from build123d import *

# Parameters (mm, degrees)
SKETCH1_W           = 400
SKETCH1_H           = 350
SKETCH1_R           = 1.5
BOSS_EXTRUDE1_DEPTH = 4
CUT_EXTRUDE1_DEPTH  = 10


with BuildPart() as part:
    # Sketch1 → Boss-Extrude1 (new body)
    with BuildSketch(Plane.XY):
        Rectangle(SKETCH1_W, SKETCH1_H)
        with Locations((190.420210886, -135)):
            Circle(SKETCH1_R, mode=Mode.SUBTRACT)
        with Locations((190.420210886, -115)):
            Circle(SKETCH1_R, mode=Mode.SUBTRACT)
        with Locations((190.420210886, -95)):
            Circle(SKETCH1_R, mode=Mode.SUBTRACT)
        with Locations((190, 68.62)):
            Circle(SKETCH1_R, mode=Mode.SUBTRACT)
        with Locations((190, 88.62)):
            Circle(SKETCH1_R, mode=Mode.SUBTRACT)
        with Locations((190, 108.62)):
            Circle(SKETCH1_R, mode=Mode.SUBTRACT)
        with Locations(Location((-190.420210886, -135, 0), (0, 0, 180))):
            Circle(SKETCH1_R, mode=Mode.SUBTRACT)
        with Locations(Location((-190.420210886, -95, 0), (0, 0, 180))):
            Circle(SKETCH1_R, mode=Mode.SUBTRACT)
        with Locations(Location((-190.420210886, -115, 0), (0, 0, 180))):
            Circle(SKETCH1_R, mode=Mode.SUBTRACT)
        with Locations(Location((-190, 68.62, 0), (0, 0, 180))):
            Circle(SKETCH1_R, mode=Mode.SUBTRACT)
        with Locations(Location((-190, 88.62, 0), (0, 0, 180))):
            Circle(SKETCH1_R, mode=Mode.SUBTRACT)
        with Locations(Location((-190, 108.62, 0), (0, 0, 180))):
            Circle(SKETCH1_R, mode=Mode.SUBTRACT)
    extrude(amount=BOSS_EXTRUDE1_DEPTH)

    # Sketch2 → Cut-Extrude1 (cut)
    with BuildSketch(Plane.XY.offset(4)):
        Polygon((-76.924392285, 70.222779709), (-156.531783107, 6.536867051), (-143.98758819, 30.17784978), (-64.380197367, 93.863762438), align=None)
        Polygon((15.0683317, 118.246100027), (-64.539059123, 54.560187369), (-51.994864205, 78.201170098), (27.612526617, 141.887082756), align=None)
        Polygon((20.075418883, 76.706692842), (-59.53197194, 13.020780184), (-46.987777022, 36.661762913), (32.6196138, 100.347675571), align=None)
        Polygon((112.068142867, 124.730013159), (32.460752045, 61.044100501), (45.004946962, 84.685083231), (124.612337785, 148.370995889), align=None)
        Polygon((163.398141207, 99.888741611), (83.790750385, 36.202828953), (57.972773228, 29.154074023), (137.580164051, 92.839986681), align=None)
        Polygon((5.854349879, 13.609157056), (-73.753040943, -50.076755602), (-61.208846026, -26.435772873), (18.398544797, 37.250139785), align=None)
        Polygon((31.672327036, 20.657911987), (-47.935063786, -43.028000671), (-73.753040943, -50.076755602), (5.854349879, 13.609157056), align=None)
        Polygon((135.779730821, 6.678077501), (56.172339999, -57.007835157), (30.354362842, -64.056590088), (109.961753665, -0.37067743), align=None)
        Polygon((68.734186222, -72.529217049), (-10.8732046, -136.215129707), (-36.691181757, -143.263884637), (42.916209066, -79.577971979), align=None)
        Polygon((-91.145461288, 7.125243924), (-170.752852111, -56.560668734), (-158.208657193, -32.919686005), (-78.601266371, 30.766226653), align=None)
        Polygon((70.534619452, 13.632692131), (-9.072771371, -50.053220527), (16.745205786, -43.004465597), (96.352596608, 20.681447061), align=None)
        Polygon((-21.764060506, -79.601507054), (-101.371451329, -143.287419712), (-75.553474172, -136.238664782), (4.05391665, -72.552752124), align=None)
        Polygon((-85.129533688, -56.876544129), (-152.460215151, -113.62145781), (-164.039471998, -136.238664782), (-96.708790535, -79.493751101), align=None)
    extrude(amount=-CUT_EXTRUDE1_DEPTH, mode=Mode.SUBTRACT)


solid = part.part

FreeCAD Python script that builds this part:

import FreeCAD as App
import Part
import Sketcher


def add_polygon(sketch, points):
    """Adds a closed chain of lines whose ends are joined by coincident constraints."""
    first, n = sketch.GeometryCount, len(points)
    for a, b in zip(points, points[1:] + points[:1]):
        sketch.addGeometry(Part.LineSegment(App.Vector(*a, 0), App.Vector(*b, 0)), False)
    for i in range(n):
        sketch.addConstraint(Sketcher.Constraint("Coincident", first + i, 2, first + (i + 1) % n, 1))

doc = App.newDocument("Part")
body = doc.addObject("PartDesign::Body", "Body")

sketch1 = body.newObject("Sketcher::SketchObject", "Sketch")
sketch1.AttachmentSupport = (doc.getObject("XY_Plane"), [""])
sketch1.MapMode = "FlatFace"
add_polygon(sketch1, [(-200, 175), (-200, -175), (200, -175), (200, 175)])
sketch1.addGeometry(Part.Circle(App.Vector(-190.4, -135, 0), App.Vector(0, 0, 1), 1.5), False)
sketch1.addGeometry(Part.Circle(App.Vector(-190.4, -115, 0), App.Vector(0, 0, 1), 1.5), False)
sketch1.addGeometry(Part.Circle(App.Vector(-190.4, -95, 0), App.Vector(0, 0, 1), 1.5), False)
sketch1.addGeometry(Part.Circle(App.Vector(190.4, -135, 0), App.Vector(0, 0, 1), 1.5), False)
sketch1.addGeometry(Part.Circle(App.Vector(190.4, -115, 0), App.Vector(0, 0, 1), 1.5), False)
sketch1.addGeometry(Part.Circle(App.Vector(190.4, -95, 0), App.Vector(0, 0, 1), 1.5), False)
sketch1.addGeometry(Part.Circle(App.Vector(-190, 68.6, 0), App.Vector(0, 0, 1), 1.5), False)
sketch1.addGeometry(Part.Circle(App.Vector(-190, 88.6, 0), App.Vector(0, 0, 1), 1.5), False)
sketch1.addGeometry(Part.Circle(App.Vector(-190, 108.6, 0), App.Vector(0, 0, 1), 1.5), False)
sketch1.addGeometry(Part.Circle(App.Vector(190, 68.6, 0), App.Vector(0, 0, 1), 1.5), False)
sketch1.addGeometry(Part.Circle(App.Vector(190, 88.6, 0), App.Vector(0, 0, 1), 1.5), False)
sketch1.addGeometry(Part.Circle(App.Vector(190, 108.6, 0), App.Vector(0, 0, 1), 1.5), False)
sketch1.addConstraint([
    Sketcher.Constraint("Vertical", 0),
    Sketcher.Constraint("Horizontal", 1),
    Sketcher.Constraint("Vertical", 2),
    Sketcher.Constraint("Horizontal", 3),
    Sketcher.Constraint("Equal", 4, 5),
    Sketcher.Constraint("Equal", 5, 6),
    Sketcher.Constraint("Equal", 6, 7),
    Sketcher.Constraint("Equal", 7, 8),
    Sketcher.Constraint("Equal", 8, 9),
    Sketcher.Constraint("Equal", 9, 10),
    Sketcher.Constraint("Equal", 10, 11),
    Sketcher.Constraint("Equal", 11, 12),
    Sketcher.Constraint("Equal", 12, 13),
    Sketcher.Constraint("Equal", 13, 14),
    Sketcher.Constraint("Equal", 14, 15),
    Sketcher.Constraint("Symmetric", 0, 2, 2, 2, -1, 1),
    Sketcher.Constraint("Symmetric", 4, 3, 7, 3, -2),
    Sketcher.Constraint("Symmetric", 5, 3, 8, 3, -2),
    Sketcher.Constraint("Symmetric", 6, 3, 9, 3, -2),
    Sketcher.Constraint("Symmetric", 10, 3, 13, 3, -2),
    Sketcher.Constraint("Symmetric", 11, 3, 14, 3, -2),
    Sketcher.Constraint("Symmetric", 12, 3, 15, 3, -2),
    Sketcher.Constraint("Vertical", 4, 3, 5, 3),
    Sketcher.Constraint("Vertical", 5, 3, 6, 3),
    Sketcher.Constraint("Vertical", 10, 3, 11, 3),
    Sketcher.Constraint("Vertical", 11, 3, 12, 3),
    Sketcher.Constraint("Diameter", 4, 3.0),
    Sketcher.Constraint("DistanceX", 1, 1, 1, 2, 400.0),
    Sketcher.Constraint("DistanceY", 0, 2, 0, 1, 350.0),
    Sketcher.Constraint("DistanceY", 4, 3, -1, 1, 135.0),
    Sketcher.Constraint("DistanceY", 5, 3, -1, 1, 115.0),
    Sketcher.Constraint("DistanceY", 6, 3, -1, 1, 95.0),
    Sketcher.Constraint("DistanceX", 10, 3, -1, 1, 190.0),
    Sketcher.Constraint("DistanceY", 10, 3, 11, 3, 20.0),
    Sketcher.Constraint("DistanceY", 11, 3, 12, 3, 20.0),
    Sketcher.Constraint("DistanceY", -1, 1, 10, 3, 68.62),
    Sketcher.Constraint("DistanceX", 4, 3, -1, 1, 190.420211),
])
pad1 = body.newObject("PartDesign::Pad", "Pad")
pad1.Profile = sketch1
pad1.Length = 4

sketch2 = body.newObject("Sketcher::SketchObject", "Sketch001")
sketch2.AttachmentSupport = (doc.getObject("XY_Plane"), [""])
sketch2.MapMode = "FlatFace"
sketch2.AttachmentOffset = App.Placement(App.Vector(0, 0, 4), App.Rotation())
add_polygon(sketch2, [(-157, 7), (-77, 70), (-64, 94), (-144, 30)])
add_polygon(sketch2, [(-65, 55), (15, 118), (28, 142), (-52, 78)])
add_polygon(sketch2, [(-60, 13), (20, 77), (33, 100), (-47, 37)])
add_polygon(sketch2, [(32, 61), (112, 125), (125, 148), (45, 85)])
add_polygon(sketch2, [(84, 36), (163, 100), (138, 93), (58, 29)])
add_polygon(sketch2, [(-61, -26), (-74, -50), (-48, -43), (32, 21), (6, 14), (18, 37)])
add_polygon(sketch2, [(56, -57), (136, 7), (110, 0), (30, -64)])
add_polygon(sketch2, [(-11, -136), (69, -73), (43, -80), (-37, -143)])
add_polygon(sketch2, [(-171, -57), (-91, 7), (-79, 31), (-158, -33)])
add_polygon(sketch2, [(71, 14), (-9, -50), (17, -43), (96, 21)])
add_polygon(sketch2, [(-22, -80), (-101, -143), (-76, -136), (4, -73)])
add_polygon(sketch2, [(-85, -57), (-152, -114), (-164, -136), (-97, -79)])
sketch2.addConstraint([
    Sketcher.Constraint("Parallel", 0, 2),
    Sketcher.Constraint("Parallel", 1, 3),
    Sketcher.Constraint("Parallel", 2, 4),
    Sketcher.Constraint("Parallel", 3, 5),
    Sketcher.Constraint("Parallel", 4, 6),
    Sketcher.Constraint("Parallel", 5, 7),
    Sketcher.Constraint("Parallel", 6, 8),
    Sketcher.Constraint("Parallel", 7, 9),
    Sketcher.Constraint("Parallel", 8, 10),
    Sketcher.Constraint("Parallel", 9, 11),
    Sketcher.Constraint("Parallel", 10, 12),
    Sketcher.Constraint("Parallel", 11, 13),
    Sketcher.Constraint("Parallel", 12, 14),
    Sketcher.Constraint("Parallel", 13, 15),
    Sketcher.Constraint("Parallel", 14, 16),
    Sketcher.Constraint("Parallel", 16, 18),
    Sketcher.Constraint("Parallel", 17, 19),
    Sketcher.Constraint("Parallel", 15, 20),
    Sketcher.Constraint("Parallel", 19, 21),
    Sketcher.Constraint("Parallel", 18, 22),
    Sketcher.Constraint("Parallel", 21, 23),
    Sketcher.Constraint("Parallel", 20, 24),
    Sketcher.Constraint("Parallel", 22, 25),
    Sketcher.Constraint("Parallel", 25, 26),
    Sketcher.Constraint("Parallel", 23, 27),
    Sketcher.Constraint("Parallel", 26, 28),
    Sketcher.Constraint("Parallel", 27, 29),
    Sketcher.Constraint("Parallel", 28, 30),
    Sketcher.Constraint("Parallel", 29, 31),
    Sketcher.Constraint("Parallel", 30, 32),
    Sketcher.Constraint("Parallel", 31, 33),
    Sketcher.Constraint("Parallel", 32, 34),
    Sketcher.Constraint("Parallel", 24, 35),
    Sketcher.Constraint("Parallel", 34, 36),
    Sketcher.Constraint("Parallel", 35, 37),
    Sketcher.Constraint("Parallel", 36, 38),
    Sketcher.Constraint("Parallel", 33, 39),
    Sketcher.Constraint("Parallel", 38, 40),
    Sketcher.Constraint("Parallel", 39, 41),
    Sketcher.Constraint("Parallel", 40, 42),
    Sketcher.Constraint("Parallel", 41, 43),
    Sketcher.Constraint("Parallel", 42, 44),
    Sketcher.Constraint("Parallel", 43, 45),
    Sketcher.Constraint("Parallel", 46, 48),
    Sketcher.Constraint("Parallel", 47, 49),
    Sketcher.Constraint("Horizontal", 43, 2, 47, 2),
    Sketcher.Constraint("Equal", 2, 4),
    Sketcher.Constraint("Equal", 3, 5),
    Sketcher.Constraint("Equal", 6, 8),
    Sketcher.Constraint("Equal", 7, 9),
    Sketcher.Constraint("Equal", 10, 12),
    Sketcher.Constraint("Equal", 11, 13),
    Sketcher.Constraint("Equal", 14, 16),
    Sketcher.Constraint("Equal", 15, 17),
    Sketcher.Constraint("Equal", 19, 20),
    Sketcher.Constraint("Equal", 20, 21),
    Sketcher.Constraint("Equal", 18, 22),
    Sketcher.Constraint("Equal", 21, 23),
    Sketcher.Constraint("Equal", 25, 26),
    Sketcher.Constraint("Equal", 24, 27),
    Sketcher.Constraint("Equal", 28, 30),
    Sketcher.Constraint("Equal", 29, 31),
    Sketcher.Constraint("Equal", 32, 34),
    Sketcher.Constraint("Equal", 33, 35),
    Sketcher.Constraint("Equal", 36, 38),
    Sketcher.Constraint("Equal", 37, 39),
    Sketcher.Constraint("Equal", 40, 42),
    Sketcher.Constraint("Equal", 41, 43),
    Sketcher.Constraint("DistanceX", 12, 2, 16, 2, 51.329998),
    Sketcher.Constraint("Distance", 47, 25.408999),
    Sketcher.Constraint("DistanceY", 21, 2, -1, 1, 43.028001),
    Sketcher.Constraint("DistanceY", 10, 2, 1, 2, 57.202),
    Sketcher.Constraint("DistanceY", 14, 2, 5, 2, 57.202),
    Sketcher.Constraint("Distance", 1, 26.762901),
    Sketcher.Constraint("DistanceY", -1, 1, 4, 2, 118.2461),
    Sketcher.Constraint("DistanceY", 18, 2, 9, 2, 71.193602),
    Sketcher.Constraint("DistanceX", 37, 2, 42, 2, 69.381401),
    Sketcher.Constraint("DistanceY", -1, 1, 0, 2, 70.22278),
    Sketcher.Constraint("DistanceX", 2, 2, -1, 1, 143.987588),
    Sketcher.Constraint("DistanceY", -1, 1, 2, 2, 30.17785),
    Sketcher.Constraint("DistanceX", -1, 1, 4, 2, 15.068332),
    Sketcher.Constraint("DistanceX", 7, 2, -1, 1, 64.539059),
    Sketcher.Constraint("DistanceX", -1, 1, 8, 2, 20.075419),
    Sketcher.Constraint("DistanceX", -1, 1, 16, 2, 163.398141),
    Sketcher.Constraint("DistanceY", -1, 1, 16, 2, 99.888742),
    Sketcher.Constraint("DistanceY", -1, 1, 19, 2, 36.202829),
    Sketcher.Constraint("DistanceX", 20, 2, -1, 1, 73.753041),
    Sketcher.Constraint("DistanceX", -1, 1, 26, 2, 135.779731),
    Sketcher.Constraint("DistanceY", 28, 2, -1, 1, 64.05659),
    Sketcher.Constraint("DistanceX", -1, 1, 31, 2, 42.916209),
    Sketcher.Constraint("DistanceY", 31, 2, -1, 1, 79.577972),
    Sketcher.Constraint("DistanceX", 34, 2, -1, 1, 91.145461),
    Sketcher.Constraint("DistanceY", 37, 2, -1, 1, 56.560669),
    Sketcher.Constraint("DistanceX", 38, 2, -1, 1, 9.072771),
    Sketcher.Constraint("DistanceY", 38, 2, -1, 1, 50.053221),
    Sketcher.Constraint("DistanceY", 42, 2, -1, 1, 143.28742),
    Sketcher.Constraint("DistanceX", 47, 2, -1, 1, 164.039472),
    Sketcher.Constraint("DistanceX", 48, 2, -1, 1, 96.708791),
    Sketcher.Constraint("DistanceY", 48, 2, -1, 1, 79.493751),
    Sketcher.Constraint("DistanceY", 42, 2, 46, 2, 29.665962),
])
pocket1 = body.newObject("PartDesign::Pocket", "Pocket")
pocket1.Profile = sketch2
pocket1.Length = 10

doc.recompute()
